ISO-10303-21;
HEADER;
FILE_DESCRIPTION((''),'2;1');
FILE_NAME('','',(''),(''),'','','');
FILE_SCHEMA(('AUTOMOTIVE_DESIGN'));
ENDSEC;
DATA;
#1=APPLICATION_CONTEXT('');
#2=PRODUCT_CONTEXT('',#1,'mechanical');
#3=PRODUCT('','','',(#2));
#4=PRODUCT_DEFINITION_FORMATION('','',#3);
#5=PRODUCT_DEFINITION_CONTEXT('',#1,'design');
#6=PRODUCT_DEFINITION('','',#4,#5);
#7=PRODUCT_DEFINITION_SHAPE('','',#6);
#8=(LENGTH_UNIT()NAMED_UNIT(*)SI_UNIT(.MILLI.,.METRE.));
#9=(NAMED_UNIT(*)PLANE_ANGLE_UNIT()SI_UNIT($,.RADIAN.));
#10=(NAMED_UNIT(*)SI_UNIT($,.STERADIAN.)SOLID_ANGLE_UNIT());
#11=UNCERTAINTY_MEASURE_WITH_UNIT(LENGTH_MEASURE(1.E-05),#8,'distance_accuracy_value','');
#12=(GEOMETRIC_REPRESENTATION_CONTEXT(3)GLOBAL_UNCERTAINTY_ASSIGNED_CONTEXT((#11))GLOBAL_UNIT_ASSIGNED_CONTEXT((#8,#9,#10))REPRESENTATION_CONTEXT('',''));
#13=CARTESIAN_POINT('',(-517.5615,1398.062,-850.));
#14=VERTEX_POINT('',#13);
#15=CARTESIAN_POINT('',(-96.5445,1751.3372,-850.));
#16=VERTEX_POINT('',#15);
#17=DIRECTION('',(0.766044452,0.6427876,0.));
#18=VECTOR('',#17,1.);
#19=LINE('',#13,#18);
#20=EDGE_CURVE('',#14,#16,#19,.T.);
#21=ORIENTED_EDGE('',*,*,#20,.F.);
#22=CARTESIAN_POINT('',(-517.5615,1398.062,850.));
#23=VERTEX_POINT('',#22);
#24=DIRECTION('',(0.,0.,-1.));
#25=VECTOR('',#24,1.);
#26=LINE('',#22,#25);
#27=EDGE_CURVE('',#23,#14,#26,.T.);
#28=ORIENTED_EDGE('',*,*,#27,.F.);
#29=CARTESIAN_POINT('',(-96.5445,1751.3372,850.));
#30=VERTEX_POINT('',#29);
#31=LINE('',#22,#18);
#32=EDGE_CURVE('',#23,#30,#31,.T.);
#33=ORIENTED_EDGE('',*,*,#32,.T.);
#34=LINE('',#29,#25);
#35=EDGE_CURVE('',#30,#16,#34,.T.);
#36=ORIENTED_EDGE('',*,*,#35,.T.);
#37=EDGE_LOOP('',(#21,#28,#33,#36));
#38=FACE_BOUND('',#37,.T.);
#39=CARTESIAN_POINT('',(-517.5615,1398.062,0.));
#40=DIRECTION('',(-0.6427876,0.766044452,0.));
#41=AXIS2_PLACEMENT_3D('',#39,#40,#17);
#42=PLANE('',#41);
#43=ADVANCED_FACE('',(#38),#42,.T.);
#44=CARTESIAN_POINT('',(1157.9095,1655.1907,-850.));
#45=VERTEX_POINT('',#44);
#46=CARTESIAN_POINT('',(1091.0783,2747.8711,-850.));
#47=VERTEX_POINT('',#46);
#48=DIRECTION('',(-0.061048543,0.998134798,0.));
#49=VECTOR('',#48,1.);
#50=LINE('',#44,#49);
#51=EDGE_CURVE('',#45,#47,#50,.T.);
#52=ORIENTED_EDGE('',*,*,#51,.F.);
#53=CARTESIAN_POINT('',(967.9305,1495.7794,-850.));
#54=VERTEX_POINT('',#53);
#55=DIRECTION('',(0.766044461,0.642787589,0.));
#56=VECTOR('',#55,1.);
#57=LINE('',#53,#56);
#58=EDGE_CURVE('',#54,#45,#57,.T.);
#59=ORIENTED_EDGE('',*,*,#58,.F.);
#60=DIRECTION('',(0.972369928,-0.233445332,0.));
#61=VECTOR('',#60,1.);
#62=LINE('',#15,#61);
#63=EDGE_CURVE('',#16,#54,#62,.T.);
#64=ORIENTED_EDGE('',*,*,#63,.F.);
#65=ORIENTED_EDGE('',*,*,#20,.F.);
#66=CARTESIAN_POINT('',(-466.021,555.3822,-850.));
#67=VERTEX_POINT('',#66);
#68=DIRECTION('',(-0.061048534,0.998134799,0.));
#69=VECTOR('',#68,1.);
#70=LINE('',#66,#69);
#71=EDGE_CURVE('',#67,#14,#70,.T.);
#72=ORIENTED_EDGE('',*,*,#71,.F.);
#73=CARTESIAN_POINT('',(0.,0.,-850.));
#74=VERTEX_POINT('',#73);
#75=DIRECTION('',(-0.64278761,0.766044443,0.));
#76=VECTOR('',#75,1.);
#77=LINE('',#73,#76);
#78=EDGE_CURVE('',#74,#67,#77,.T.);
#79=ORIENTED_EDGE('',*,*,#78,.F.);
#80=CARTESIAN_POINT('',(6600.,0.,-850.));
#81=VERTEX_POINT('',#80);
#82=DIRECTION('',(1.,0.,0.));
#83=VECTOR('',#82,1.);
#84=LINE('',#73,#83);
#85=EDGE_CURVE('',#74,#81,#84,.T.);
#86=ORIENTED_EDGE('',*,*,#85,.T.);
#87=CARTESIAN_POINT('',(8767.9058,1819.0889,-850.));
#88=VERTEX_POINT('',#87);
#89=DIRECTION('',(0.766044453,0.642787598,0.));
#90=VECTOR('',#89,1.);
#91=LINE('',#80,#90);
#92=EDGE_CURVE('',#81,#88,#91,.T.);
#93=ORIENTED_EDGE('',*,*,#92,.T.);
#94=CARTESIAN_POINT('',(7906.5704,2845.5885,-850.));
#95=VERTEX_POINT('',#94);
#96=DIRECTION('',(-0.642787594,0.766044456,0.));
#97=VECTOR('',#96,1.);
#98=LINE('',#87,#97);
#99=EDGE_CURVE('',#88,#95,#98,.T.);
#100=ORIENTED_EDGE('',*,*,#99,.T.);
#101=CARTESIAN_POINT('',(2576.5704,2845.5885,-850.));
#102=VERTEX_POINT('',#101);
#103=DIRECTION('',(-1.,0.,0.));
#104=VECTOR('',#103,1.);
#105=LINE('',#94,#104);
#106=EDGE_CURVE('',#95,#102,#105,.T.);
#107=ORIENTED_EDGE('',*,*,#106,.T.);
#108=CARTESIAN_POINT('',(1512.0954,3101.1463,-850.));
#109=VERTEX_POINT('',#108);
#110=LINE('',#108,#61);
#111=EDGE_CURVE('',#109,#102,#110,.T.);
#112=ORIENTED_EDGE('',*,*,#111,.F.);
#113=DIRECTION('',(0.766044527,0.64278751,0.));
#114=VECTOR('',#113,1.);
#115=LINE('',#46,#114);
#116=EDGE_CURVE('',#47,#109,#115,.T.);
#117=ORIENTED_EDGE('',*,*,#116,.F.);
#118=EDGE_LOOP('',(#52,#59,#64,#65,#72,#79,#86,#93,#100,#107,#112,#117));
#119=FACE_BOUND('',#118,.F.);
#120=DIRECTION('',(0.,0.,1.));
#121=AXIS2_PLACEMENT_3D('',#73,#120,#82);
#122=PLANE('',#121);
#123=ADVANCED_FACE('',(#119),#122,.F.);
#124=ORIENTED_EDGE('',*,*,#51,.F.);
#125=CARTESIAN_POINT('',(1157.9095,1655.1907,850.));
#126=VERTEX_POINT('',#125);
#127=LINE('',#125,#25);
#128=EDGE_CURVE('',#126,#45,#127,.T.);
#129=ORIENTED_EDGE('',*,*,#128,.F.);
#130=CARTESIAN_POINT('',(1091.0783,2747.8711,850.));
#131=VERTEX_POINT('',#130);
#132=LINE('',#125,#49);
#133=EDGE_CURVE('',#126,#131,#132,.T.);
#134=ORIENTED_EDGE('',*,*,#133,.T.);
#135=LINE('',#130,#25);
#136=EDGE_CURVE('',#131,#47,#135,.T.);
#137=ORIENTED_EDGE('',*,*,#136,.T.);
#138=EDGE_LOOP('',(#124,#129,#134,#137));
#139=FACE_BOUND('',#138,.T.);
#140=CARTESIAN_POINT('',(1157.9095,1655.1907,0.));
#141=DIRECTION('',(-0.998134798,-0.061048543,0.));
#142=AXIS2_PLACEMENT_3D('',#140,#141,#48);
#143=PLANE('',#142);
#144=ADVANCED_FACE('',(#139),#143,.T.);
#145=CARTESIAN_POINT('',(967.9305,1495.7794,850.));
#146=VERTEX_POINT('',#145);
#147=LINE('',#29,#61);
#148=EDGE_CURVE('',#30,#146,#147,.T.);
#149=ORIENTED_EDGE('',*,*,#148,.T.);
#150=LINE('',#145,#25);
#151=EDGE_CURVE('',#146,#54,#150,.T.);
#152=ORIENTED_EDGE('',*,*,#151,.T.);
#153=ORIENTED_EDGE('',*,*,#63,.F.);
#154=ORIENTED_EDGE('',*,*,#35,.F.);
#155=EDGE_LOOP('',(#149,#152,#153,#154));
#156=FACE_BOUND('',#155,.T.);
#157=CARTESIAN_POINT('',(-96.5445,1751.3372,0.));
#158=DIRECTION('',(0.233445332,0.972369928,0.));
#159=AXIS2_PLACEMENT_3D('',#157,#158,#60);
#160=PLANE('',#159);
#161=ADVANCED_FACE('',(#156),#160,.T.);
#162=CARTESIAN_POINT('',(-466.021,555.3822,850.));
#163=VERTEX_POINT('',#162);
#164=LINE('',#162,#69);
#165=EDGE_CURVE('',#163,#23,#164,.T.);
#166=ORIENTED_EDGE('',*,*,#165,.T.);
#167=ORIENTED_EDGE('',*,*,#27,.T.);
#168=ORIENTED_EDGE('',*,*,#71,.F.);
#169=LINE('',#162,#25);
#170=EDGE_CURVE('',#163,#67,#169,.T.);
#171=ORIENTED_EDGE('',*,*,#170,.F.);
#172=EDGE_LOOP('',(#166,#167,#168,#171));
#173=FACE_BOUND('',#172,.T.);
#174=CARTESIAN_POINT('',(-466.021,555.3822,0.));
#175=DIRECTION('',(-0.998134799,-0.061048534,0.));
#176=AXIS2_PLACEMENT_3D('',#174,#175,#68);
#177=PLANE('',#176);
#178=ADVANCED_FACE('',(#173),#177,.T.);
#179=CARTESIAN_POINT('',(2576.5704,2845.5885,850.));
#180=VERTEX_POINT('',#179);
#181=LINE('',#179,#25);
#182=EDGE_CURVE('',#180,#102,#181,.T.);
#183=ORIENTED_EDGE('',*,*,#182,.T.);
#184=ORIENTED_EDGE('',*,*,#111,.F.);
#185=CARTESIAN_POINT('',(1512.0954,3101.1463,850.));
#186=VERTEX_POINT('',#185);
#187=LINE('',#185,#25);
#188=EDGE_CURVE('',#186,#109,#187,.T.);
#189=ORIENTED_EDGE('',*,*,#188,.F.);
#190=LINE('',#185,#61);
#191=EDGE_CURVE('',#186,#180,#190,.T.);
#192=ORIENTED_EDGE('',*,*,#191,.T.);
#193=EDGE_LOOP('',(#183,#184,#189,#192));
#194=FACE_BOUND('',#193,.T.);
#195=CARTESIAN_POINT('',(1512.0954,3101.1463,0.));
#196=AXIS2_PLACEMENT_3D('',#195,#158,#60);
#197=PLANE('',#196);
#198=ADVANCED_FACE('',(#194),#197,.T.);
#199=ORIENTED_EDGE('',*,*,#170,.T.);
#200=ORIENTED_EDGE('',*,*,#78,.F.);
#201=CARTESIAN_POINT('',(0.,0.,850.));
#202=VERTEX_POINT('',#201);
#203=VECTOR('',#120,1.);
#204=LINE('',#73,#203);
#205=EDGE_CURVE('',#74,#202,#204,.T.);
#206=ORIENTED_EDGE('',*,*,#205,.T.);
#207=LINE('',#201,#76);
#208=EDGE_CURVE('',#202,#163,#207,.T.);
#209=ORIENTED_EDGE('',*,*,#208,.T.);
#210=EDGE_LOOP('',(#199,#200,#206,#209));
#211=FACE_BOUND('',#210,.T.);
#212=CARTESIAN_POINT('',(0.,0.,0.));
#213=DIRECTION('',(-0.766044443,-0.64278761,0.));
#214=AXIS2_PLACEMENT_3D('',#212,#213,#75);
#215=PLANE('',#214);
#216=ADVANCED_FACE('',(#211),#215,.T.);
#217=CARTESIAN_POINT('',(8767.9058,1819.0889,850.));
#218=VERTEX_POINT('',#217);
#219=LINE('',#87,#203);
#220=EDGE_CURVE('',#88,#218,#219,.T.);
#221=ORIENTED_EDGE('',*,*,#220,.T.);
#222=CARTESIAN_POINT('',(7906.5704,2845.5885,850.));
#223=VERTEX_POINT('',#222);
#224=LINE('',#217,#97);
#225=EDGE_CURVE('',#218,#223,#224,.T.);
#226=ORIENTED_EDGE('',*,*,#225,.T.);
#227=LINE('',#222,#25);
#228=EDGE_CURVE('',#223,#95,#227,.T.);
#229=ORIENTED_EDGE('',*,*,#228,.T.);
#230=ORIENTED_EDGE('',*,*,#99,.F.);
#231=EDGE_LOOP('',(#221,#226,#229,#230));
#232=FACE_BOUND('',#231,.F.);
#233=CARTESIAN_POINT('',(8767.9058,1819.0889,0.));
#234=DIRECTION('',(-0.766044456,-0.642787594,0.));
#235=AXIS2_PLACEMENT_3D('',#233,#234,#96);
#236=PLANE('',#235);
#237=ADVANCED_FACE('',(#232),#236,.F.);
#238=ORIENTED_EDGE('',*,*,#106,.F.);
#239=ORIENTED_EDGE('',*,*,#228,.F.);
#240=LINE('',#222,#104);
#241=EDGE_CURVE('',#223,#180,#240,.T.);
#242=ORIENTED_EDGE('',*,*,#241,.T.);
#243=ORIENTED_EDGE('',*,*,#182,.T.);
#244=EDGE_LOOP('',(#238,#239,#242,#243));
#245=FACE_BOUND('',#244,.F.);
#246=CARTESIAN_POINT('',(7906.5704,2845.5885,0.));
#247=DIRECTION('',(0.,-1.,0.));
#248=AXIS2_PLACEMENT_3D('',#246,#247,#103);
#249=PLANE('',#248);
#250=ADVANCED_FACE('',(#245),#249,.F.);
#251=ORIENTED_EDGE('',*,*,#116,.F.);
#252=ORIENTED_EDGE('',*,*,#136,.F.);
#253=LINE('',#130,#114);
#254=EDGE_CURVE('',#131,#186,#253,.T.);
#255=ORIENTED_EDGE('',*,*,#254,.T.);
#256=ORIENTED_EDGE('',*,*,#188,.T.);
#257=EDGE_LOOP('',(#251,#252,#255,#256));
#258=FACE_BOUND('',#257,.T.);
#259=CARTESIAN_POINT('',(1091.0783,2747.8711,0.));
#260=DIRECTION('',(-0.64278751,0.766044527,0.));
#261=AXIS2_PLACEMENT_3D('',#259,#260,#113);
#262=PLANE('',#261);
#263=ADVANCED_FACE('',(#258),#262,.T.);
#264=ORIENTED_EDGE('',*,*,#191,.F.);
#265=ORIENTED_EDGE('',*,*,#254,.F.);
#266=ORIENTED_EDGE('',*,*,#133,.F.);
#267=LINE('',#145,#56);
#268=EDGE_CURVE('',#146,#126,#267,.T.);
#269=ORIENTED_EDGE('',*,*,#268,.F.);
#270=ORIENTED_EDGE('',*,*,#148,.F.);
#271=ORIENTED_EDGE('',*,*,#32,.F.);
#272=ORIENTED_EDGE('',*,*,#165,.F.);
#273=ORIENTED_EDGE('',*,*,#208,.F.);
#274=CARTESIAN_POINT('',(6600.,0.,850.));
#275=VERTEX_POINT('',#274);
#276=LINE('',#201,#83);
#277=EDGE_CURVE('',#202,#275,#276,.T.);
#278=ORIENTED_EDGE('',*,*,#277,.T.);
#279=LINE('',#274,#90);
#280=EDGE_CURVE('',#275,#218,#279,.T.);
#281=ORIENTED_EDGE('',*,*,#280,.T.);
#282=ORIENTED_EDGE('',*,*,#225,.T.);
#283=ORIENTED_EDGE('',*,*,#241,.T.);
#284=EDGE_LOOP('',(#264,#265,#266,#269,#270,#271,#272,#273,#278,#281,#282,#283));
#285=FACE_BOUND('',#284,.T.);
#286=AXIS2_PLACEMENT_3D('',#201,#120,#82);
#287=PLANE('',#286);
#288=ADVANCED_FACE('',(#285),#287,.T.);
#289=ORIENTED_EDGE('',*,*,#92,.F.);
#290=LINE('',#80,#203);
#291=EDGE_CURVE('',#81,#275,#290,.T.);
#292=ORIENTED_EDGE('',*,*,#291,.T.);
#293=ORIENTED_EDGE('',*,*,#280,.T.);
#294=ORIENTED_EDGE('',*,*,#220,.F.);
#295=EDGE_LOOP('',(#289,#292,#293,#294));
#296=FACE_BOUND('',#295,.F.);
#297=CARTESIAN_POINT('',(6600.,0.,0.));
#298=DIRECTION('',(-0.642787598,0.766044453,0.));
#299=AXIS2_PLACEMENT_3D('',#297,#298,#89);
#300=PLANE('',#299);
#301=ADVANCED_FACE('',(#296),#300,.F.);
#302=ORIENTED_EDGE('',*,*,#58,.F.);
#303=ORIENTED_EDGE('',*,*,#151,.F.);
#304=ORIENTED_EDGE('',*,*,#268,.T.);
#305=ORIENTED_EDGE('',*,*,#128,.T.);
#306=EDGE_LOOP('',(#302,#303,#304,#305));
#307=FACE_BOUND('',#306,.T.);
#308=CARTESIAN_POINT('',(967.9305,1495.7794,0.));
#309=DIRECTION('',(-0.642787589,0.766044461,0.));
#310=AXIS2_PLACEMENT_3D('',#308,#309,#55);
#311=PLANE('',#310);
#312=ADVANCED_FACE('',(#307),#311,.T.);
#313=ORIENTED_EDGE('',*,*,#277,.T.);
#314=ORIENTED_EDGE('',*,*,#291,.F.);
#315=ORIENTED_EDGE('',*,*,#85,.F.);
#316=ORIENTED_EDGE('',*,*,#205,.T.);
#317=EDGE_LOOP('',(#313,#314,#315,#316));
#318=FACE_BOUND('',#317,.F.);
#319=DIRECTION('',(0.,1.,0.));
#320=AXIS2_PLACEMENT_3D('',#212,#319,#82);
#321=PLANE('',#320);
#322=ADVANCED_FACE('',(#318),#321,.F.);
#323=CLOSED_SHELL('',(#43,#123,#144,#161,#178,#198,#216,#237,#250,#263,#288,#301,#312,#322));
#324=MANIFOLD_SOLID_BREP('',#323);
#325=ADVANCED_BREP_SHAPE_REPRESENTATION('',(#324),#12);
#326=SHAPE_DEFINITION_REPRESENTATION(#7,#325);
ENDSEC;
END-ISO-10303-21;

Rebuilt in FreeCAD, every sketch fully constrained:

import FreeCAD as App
import Part
import Sketcher
Q = App.Units.Quantity


def add_polygon(sketch, points):
    """Adds a closed chain of lines whose ends are joined by coincident constraints."""
    first, n = sketch.GeometryCount, len(points)
    for a, b in zip(points, points[1:] + points[:1]):
        sketch.addGeometry(Part.LineSegment(App.Vector(*a, 0), App.Vector(*b, 0)), False)
    for i in range(n):
        sketch.addConstraint(Sketcher.Constraint("Coincident", first + i, 2, first + (i + 1) % n, 1))

doc = App.newDocument("Part")
body = doc.addObject("PartDesign::Body", "Body")

# Sketch on XY plane
sketch1 = body.newObject("Sketcher::SketchObject", "Sketch")
sketch1.AttachmentSupport = (doc.getObject("XY_Plane"), [""])
sketch1.MapMode = "FlatFace"
add_polygon(sketch1, [(-466.021, 555.3822), (0, 0), (6600, 0), (8767.9058, 1819.0889), (7906.5704, 2845.5885), (2576.5704, 2845.5885), (1512.0954, 3101.1463), (1091.0783, 2747.8711), (1157.9095, 1655.1907), (967.9305, 1495.7794), (-96.5445, 1751.3372), (-517.5615, 1398.062)])  # lines 0-11
sketch1.addConstraint([
    Sketcher.Constraint("Horizontal", 1),
    Sketcher.Constraint("Horizontal", 4),
    Sketcher.Constraint("Coincident", 0, 2, -1, 1),
    Sketcher.Constraint("Perpendicular", 0, 2),
    Sketcher.Constraint("Perpendicular", 2, 3),
    Sketcher.Constraint("Perpendicular", 3, 6),
    Sketcher.Constraint("Parallel", 6, 8),
    Sketcher.Constraint("Parallel", 5, 9),
    Sketcher.Constraint("Parallel", 8, 10),
    Sketcher.Constraint("Parallel", 7, 11),
    Sketcher.Constraint("Equal", 5, 7),
    Sketcher.Constraint("Equal", 7, 9),
    Sketcher.Constraint("Equal", 6, 10),
    Sketcher.Constraint("DistanceX", 1, 1, 1, 2, 6600.0),
    Sketcher.Constraint("DistanceX", 4, 2, 4, 1, 5330.0),
    Sketcher.Constraint("Angle", 6, Q("-140 deg")),
    Sketcher.Constraint("Distance", 0, 725.0),
    Sketcher.Constraint("Distance", 2, 2830.0),
    Sketcher.Constraint("Distance", 3, 1340.0),
    Sketcher.Constraint("Distance", 8, 248.0),
    Sketcher.Constraint("Angle", 5, Q("166.5 deg")),
    Sketcher.Constraint("Angle", 7, Q("-86.5 deg")),
    Sketcher.Constraint("DistanceY", -1, 1, 6, 2, 2747.871),
])
pad1 = body.newObject("PartDesign::Pad", "Pad")
pad1.Profile = sketch1
pad1.Length = 1700
pad1.Midplane = True

doc.recompute()
